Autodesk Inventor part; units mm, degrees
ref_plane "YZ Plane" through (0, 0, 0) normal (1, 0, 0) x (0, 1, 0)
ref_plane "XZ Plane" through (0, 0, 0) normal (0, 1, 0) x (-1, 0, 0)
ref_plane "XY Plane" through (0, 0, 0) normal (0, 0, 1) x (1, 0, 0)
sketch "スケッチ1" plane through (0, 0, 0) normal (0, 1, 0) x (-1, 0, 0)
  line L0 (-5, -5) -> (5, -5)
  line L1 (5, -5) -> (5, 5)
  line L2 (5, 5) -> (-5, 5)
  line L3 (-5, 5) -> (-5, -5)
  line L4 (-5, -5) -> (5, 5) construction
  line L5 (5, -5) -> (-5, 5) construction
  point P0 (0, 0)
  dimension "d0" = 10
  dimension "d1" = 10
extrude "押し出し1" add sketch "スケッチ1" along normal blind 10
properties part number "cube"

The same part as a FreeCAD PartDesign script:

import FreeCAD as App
import Part
import Sketcher

V = App.Vector
Q = App.Units.Quantity


def add_polygon(sketch, points):
    """Adds a closed chain of lines whose ends are joined by coincident constraints."""
    first, n = sketch.GeometryCount, len(points)
    for a, b in zip(points, points[1:] + points[:1]):
        sketch.addGeometry(Part.LineSegment(App.Vector(*a, 0), App.Vector(*b, 0)), False)
    for i in range(n):
        sketch.addConstraint(Sketcher.Constraint("Coincident", first + i, 2, first + (i + 1) % n, 1))

doc = App.newDocument("Part")
params = doc.addObject("Spreadsheet::Sheet", "Params")
for row, (alias, value) in enumerate([
    ("sketch1_width", "10 mm"),
    ("pad1_length", "10 mm"),
], start=1):
    params.set(f"A{row}", alias)
    params.set(f"B{row}", "=" + value)
    params.setAlias(f"B{row}", alias)

body = doc.addObject("PartDesign::Body", "Body")

sketch1 = body.newObject("Sketcher::SketchObject", "Sketch")
sketch1.AttachmentSupport = (doc.getObject("XZ_Plane"), [""])
sketch1.MapMode = "FlatFace"
add_polygon(sketch1, [(5, 5), (5, -5), (-5, -5), (-5, 5)])
sketch1.addConstraint([
    Sketcher.Constraint("Vertical", 0),
    Sketcher.Constraint("Horizontal", 1),
    Sketcher.Constraint("Vertical", 2),
    Sketcher.Constraint("Horizontal", 3),
    Sketcher.Constraint("Symmetric", 0, 2, 2, 2, -1, 1),
    Sketcher.Constraint("Equal", 3, 0),
    Sketcher.Constraint("DistanceX", 1, 2, 1, 1, Q("10 mm")),
])
sketch1.setExpression("Constraints[10]", "Params.sketch1_width")
pad1 = body.newObject("PartDesign::Pad", "Pad")
pad1.Profile = sketch1
pad1.setExpression("Length", "Params.pad1_length")
pad1.Reversed = True

doc.recompute()
